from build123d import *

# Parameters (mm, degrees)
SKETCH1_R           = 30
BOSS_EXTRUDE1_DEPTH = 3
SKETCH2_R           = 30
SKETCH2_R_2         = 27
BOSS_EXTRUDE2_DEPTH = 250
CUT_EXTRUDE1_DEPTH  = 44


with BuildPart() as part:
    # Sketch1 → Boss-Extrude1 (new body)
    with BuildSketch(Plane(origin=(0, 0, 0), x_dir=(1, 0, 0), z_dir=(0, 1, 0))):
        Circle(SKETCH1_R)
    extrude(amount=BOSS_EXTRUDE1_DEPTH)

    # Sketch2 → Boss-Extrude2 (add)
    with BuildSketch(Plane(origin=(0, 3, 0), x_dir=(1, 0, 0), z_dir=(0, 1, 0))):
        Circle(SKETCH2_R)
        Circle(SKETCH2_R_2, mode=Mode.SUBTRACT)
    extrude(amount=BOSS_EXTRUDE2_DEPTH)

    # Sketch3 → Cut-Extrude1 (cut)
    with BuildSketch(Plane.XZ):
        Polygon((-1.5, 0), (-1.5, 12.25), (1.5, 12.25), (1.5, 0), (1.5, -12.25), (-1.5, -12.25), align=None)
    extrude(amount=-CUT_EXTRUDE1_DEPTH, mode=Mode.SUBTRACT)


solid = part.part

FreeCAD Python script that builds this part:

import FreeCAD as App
import Part
import Sketcher

V = App.Vector


def add_polygon(sketch, points):
    """Adds a closed chain of lines whose ends are joined by coincident constraints."""
    first, n = sketch.GeometryCount, len(points)
    for a, b in zip(points, points[1:] + points[:1]):
        sketch.addGeometry(Part.LineSegment(App.Vector(*a, 0), App.Vector(*b, 0)), False)
    for i in range(n):
        sketch.addConstraint(Sketcher.Constraint("Coincident", first + i, 2, first + (i + 1) % n, 1))

doc = App.newDocument("Part")
body = doc.addObject("PartDesign::Body", "Body")

# Sketch on XZ plane
sketch1 = body.newObject("Sketcher::SketchObject", "Sketch")
sketch1.AttachmentSupport = (doc.getObject("XZ_Plane"), [""])
sketch1.MapMode = "FlatFace"
sketch1.addGeometry(Part.Circle(V(0, 0, 0), V(0, 0, 1), 30), False)
sketch1.addConstraint([
    Sketcher.Constraint("Coincident", 0, 3, -1, 1),
    Sketcher.Constraint("Diameter", 0, 60.0),
])
pad1 = body.newObject("PartDesign::Pad", "Pad")
pad1.Profile = sketch1
pad1.Length = 3
pad1.Reversed = True

# Sketch on XZ plane
sketch2 = body.newObject("Sketcher::SketchObject", "Sketch001")
sketch2.AttachmentSupport = (doc.getObject("XZ_Plane"), [""])
sketch2.MapMode = "FlatFace"
sketch2.AttachmentOffset = App.Placement(V(0, 0, -3), App.Rotation())
sketch2.addGeometry([
    Part.Circle(V(0, 0, 0), V(0, 0, 1), 30),
    Part.Circle(V(0, 0, 0), V(0, 0, 1), 27),
], False)
sketch2.addConstraint([
    Sketcher.Constraint("Coincident", 0, 3, -1, 1),
    Sketcher.Constraint("Coincident", 1, 3, -1, 1),
    Sketcher.Constraint("Diameter", 0, 60.0),
    Sketcher.Constraint("Diameter", 1, 54.0),
])
pad2 = body.newObject("PartDesign::Pad", "Pad001")
pad2.Profile = sketch2
pad2.Length = 250
pad2.Reversed = True

# Sketch on XZ plane
sketch3 = body.newObject("Sketcher::SketchObject", "Sketch002")
sketch3.AttachmentSupport = (doc.getObject("XZ_Plane"), [""])
sketch3.MapMode = "FlatFace"
add_polygon(sketch3, [(-1.5, 12.2), (-1.5, -12.2), (1.5, -12.2), (1.5, 12.2)])  # lines 0-3
sketch3.addConstraint([
    Sketcher.Constraint("Vertical", 0),
    Sketcher.Constraint("Horizontal", 1),
    Sketcher.Constraint("Vertical", 2),
    Sketcher.Constraint("Horizontal", 3),
    Sketcher.Constraint("Symmetric", 0, 2, 2, 2, -1, 1),
    Sketcher.Constraint("DistanceX", 1, 1, 1, 2, 3.0),
    Sketcher.Constraint("DistanceY", 0, 2, 0, 1, 24.5),
])
pocket1 = body.newObject("PartDesign::Pocket", "Pocket")
pocket1.Profile = sketch3
pocket1.Length = 44

doc.recompute()
